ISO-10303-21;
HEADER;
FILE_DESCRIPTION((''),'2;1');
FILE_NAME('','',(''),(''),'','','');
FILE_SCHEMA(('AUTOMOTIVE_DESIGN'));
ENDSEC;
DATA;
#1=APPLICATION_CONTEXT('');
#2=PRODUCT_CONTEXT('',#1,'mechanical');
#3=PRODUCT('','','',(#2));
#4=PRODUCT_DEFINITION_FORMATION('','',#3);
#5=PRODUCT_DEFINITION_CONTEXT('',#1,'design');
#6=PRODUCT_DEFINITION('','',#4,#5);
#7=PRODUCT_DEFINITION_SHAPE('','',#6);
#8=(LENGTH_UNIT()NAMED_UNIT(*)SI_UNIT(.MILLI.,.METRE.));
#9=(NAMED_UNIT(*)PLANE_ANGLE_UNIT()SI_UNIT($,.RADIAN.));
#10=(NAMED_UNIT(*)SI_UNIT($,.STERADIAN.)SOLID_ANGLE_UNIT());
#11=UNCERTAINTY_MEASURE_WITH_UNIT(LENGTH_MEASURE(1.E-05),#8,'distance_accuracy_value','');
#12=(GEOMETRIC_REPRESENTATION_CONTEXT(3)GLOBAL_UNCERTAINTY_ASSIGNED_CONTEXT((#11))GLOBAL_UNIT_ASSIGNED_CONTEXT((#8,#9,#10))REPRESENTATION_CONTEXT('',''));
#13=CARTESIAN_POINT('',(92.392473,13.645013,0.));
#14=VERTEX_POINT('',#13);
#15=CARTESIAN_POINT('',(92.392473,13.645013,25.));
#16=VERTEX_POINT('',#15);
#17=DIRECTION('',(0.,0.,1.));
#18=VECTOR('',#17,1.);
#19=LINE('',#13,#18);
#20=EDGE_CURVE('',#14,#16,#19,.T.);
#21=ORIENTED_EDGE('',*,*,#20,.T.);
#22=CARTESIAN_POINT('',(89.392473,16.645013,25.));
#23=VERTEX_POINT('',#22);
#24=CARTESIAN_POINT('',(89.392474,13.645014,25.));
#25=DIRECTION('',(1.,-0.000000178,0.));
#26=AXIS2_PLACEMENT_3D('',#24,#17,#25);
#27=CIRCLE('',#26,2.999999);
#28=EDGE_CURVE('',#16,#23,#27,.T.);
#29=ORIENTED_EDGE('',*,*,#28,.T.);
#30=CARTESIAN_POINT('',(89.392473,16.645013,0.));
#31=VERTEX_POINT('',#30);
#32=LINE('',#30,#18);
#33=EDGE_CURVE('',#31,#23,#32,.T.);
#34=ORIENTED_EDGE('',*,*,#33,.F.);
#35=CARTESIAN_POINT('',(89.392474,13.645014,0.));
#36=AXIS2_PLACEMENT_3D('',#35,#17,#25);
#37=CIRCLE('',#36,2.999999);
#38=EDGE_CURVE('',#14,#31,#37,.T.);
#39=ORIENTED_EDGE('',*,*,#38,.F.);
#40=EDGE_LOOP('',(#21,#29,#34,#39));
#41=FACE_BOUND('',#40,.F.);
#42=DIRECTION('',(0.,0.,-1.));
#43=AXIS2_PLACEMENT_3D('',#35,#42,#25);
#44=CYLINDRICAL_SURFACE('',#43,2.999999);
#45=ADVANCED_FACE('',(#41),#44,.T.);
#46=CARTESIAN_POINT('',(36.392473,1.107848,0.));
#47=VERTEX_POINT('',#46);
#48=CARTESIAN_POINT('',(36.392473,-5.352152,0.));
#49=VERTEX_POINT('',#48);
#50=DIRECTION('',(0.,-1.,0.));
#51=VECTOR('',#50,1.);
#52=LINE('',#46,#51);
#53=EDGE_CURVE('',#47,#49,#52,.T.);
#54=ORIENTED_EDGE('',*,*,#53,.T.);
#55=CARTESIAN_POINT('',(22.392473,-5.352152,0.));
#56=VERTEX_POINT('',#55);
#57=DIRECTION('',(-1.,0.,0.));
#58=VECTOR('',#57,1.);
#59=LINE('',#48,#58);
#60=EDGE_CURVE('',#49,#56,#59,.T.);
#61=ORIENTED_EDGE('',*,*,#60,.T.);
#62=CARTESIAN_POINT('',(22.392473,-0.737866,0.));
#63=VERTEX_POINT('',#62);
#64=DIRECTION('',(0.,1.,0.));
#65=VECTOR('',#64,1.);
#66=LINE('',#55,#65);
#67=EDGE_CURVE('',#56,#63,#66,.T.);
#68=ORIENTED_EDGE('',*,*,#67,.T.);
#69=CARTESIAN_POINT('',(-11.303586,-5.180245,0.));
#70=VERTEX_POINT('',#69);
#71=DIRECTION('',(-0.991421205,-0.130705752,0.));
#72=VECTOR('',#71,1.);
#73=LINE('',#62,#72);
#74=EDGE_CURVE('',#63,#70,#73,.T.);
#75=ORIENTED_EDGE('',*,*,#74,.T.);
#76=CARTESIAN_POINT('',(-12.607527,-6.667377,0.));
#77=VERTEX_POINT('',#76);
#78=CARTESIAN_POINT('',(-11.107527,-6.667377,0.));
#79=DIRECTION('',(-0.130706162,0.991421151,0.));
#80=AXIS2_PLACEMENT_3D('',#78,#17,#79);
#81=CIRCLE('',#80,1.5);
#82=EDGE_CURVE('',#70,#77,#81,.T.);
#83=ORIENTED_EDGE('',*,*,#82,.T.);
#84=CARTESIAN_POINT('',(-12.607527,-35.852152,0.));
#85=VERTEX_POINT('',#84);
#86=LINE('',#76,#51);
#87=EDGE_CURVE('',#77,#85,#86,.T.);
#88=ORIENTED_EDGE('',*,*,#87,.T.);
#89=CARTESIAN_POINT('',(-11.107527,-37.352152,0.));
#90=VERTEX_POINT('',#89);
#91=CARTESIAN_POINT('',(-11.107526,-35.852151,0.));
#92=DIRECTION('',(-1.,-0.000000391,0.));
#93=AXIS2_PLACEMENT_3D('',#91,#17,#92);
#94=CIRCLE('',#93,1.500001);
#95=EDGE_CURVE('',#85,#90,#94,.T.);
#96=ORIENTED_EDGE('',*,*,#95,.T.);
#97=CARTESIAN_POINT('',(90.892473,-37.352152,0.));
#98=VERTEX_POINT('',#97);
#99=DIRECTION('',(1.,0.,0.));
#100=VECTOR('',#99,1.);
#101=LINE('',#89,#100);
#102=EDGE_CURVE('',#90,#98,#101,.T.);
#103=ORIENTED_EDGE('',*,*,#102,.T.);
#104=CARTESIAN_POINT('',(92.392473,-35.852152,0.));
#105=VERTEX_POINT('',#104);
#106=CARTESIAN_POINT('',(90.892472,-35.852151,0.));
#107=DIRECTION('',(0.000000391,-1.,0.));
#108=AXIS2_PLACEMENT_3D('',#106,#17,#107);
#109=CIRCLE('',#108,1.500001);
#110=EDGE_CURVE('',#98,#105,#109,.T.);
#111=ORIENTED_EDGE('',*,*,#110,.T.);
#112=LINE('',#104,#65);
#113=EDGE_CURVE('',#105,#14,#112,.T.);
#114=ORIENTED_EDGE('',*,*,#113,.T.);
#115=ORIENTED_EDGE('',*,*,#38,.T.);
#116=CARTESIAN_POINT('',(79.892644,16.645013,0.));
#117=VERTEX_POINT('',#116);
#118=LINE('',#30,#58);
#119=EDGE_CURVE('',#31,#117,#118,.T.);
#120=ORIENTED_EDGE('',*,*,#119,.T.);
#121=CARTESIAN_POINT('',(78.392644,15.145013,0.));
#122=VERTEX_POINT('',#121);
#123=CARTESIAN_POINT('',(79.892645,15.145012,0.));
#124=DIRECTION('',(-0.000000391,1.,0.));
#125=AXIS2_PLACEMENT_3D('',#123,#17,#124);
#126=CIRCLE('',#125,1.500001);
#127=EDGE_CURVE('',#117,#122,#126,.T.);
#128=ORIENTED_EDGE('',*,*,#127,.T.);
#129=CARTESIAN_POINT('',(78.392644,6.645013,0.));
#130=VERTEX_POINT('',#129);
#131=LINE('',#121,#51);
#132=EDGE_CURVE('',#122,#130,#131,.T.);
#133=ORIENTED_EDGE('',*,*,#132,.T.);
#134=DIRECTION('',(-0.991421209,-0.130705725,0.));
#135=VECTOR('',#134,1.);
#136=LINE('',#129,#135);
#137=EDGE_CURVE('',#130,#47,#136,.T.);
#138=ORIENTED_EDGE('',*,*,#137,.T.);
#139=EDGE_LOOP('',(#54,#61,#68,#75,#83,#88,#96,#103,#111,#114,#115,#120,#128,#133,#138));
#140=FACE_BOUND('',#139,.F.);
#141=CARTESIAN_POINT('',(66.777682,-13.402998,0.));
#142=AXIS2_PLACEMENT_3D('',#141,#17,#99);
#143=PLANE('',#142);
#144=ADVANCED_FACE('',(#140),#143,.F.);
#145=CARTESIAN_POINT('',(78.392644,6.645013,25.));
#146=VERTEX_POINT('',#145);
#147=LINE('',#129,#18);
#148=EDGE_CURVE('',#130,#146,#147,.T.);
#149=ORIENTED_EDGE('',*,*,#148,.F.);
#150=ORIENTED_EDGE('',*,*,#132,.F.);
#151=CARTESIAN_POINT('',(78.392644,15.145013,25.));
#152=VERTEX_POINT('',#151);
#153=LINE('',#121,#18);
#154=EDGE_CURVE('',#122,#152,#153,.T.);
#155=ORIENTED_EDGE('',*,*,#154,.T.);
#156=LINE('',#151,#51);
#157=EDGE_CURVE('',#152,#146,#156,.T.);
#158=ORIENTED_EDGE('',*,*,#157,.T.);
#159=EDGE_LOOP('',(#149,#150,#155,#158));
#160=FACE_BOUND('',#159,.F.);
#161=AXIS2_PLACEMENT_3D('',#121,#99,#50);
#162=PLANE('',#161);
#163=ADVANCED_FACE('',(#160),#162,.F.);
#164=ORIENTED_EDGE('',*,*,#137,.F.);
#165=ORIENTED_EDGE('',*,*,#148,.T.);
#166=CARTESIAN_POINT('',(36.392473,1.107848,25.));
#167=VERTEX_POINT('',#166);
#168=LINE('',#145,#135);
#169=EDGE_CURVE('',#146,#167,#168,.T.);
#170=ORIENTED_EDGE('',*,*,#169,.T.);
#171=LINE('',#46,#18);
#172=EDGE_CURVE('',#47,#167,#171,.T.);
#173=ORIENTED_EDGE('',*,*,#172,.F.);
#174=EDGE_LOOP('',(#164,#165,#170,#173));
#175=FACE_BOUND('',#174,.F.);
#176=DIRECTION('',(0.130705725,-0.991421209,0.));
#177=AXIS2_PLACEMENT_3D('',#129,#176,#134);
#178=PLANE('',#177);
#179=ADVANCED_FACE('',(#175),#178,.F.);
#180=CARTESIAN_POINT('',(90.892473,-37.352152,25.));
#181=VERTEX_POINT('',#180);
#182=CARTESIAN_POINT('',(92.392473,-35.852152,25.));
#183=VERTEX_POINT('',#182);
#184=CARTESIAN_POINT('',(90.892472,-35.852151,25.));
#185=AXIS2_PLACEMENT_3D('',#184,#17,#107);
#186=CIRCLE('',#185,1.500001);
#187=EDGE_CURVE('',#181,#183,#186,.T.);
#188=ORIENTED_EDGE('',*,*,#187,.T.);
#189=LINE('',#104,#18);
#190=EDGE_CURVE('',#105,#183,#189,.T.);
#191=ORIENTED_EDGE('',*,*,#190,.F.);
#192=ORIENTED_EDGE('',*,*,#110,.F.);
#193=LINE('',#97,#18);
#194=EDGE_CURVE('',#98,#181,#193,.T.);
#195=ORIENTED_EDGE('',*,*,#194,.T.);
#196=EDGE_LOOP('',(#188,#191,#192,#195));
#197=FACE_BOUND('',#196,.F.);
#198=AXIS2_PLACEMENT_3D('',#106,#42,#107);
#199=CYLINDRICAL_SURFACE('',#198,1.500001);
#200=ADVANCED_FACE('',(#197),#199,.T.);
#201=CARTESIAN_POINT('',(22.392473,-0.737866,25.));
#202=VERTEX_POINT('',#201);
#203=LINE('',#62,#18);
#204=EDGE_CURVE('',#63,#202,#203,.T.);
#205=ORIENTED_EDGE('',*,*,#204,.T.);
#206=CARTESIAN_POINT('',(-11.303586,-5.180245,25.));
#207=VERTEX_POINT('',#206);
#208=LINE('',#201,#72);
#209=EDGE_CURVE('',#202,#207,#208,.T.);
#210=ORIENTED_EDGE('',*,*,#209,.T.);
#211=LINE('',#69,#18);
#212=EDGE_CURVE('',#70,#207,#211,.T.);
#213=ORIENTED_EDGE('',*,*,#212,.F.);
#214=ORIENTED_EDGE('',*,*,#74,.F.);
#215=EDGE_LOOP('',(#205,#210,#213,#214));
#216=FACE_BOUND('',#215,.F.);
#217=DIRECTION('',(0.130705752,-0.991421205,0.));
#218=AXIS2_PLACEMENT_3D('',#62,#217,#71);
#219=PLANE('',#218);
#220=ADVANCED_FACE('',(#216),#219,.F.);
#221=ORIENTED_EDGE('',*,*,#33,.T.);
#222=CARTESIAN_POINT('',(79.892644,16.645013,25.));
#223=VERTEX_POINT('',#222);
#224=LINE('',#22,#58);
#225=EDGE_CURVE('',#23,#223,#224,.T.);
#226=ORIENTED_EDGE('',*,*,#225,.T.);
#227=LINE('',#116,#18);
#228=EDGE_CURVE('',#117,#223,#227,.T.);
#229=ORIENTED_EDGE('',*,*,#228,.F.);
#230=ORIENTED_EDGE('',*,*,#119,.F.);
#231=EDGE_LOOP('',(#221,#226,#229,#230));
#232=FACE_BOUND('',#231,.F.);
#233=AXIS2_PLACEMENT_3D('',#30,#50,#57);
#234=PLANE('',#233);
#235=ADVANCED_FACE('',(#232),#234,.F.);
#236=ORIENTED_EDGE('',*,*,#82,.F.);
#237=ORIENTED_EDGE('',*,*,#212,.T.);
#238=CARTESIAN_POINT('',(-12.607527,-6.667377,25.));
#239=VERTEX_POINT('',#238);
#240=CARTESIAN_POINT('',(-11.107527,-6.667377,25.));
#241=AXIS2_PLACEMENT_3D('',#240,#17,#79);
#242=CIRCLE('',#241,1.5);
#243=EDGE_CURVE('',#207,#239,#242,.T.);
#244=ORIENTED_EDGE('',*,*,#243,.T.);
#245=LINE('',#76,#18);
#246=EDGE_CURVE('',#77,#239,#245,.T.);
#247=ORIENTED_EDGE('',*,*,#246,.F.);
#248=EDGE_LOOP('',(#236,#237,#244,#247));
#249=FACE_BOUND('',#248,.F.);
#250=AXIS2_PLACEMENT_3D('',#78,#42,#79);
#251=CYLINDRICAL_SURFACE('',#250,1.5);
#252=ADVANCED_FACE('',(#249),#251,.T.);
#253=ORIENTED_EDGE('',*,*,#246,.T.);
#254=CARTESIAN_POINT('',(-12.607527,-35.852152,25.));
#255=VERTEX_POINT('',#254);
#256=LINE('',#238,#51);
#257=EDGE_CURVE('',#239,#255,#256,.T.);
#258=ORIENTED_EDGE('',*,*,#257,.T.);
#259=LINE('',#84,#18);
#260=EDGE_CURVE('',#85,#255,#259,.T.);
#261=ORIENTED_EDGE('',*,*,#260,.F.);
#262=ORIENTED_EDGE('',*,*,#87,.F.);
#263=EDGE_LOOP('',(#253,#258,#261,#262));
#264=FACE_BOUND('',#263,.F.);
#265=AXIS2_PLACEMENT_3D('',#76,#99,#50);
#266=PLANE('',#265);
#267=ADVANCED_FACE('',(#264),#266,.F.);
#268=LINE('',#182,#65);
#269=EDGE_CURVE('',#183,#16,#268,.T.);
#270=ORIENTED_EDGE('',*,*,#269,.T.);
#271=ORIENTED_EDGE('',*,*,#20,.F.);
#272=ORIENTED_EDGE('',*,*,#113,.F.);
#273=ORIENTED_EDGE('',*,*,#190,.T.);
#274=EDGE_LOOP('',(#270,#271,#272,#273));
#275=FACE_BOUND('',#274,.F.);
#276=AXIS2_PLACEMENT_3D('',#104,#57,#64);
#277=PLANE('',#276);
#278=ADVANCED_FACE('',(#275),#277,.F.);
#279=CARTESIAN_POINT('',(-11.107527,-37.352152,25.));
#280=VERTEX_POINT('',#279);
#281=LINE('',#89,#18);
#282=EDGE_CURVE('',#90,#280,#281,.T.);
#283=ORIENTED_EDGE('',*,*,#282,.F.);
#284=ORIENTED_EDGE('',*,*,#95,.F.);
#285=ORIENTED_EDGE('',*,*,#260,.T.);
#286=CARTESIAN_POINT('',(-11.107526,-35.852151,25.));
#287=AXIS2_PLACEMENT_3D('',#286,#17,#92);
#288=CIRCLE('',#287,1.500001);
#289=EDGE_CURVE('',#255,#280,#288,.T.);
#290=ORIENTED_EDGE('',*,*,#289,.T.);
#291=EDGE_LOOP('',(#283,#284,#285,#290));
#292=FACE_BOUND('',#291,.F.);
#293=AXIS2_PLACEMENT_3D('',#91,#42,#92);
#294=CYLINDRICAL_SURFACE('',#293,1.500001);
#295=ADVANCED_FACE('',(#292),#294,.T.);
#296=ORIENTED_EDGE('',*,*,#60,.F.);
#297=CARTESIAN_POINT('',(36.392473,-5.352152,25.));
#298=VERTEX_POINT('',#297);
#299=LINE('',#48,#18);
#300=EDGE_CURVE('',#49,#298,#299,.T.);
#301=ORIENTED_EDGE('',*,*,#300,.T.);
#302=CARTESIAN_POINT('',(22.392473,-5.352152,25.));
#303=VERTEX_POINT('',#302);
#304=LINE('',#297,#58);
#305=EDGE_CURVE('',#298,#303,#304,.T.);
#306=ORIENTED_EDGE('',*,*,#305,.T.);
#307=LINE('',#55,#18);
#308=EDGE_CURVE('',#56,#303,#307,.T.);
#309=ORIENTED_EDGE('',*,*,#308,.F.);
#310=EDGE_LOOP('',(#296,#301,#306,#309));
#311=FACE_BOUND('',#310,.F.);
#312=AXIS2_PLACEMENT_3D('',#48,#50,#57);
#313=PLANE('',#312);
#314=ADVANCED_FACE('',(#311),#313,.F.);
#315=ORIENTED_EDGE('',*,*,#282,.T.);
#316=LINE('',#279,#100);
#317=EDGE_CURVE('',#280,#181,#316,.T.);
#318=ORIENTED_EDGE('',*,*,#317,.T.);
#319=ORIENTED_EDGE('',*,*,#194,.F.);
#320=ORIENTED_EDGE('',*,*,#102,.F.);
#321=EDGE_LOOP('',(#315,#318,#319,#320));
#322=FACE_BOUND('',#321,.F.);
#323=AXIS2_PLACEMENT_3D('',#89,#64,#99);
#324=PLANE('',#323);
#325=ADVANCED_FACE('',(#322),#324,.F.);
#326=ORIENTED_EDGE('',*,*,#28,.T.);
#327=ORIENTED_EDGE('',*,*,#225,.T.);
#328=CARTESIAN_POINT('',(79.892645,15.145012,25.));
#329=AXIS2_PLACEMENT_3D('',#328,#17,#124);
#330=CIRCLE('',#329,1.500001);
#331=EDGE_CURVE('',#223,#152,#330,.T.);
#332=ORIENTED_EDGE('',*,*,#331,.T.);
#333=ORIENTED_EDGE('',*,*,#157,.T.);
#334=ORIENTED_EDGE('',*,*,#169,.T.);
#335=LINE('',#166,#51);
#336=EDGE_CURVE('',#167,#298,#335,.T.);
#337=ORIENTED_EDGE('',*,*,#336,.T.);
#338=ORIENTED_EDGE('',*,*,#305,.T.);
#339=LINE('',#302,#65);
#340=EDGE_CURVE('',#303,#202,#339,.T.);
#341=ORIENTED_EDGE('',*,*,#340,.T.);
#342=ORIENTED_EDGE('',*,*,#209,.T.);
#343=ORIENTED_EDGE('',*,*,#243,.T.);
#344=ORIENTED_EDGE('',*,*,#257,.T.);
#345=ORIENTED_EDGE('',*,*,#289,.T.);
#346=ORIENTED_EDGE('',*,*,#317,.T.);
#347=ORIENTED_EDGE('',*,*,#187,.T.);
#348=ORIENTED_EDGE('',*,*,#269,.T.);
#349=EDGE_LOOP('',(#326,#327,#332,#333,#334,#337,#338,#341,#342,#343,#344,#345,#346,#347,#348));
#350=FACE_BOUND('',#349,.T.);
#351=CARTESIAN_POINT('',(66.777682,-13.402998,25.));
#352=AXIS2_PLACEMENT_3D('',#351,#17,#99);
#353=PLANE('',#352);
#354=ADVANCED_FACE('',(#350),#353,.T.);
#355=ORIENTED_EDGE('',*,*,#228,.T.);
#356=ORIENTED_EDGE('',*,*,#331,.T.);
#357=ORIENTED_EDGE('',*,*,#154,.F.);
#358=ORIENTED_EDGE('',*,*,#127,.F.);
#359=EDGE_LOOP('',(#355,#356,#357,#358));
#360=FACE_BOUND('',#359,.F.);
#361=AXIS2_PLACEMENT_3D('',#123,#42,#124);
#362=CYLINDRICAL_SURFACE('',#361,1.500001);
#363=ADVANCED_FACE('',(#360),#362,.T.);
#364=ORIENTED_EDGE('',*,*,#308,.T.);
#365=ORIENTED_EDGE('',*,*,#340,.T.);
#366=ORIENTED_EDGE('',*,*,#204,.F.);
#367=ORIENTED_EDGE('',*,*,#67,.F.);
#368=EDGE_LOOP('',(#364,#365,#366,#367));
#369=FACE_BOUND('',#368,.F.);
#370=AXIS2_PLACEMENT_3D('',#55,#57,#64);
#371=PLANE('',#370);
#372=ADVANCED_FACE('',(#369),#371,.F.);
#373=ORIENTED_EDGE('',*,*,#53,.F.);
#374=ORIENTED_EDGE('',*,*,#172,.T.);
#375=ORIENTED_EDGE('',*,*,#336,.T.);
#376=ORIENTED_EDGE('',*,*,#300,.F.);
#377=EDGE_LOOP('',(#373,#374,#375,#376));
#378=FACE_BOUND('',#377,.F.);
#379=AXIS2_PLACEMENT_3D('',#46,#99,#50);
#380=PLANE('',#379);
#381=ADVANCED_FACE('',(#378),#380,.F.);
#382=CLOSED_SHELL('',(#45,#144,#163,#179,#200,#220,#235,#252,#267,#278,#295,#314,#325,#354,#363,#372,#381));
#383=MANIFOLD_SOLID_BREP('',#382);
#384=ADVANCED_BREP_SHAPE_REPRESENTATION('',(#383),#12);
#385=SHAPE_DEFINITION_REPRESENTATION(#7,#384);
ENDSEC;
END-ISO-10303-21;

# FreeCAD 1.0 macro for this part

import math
import FreeCAD as App
import Part
import Sketcher
from FreeCAD import Vector
Q = App.Units.Quantity

doc = App.newDocument("Part")
params = doc.addObject("Spreadsheet::Sheet", "Params")
for row, (alias, value) in enumerate([
    ("sketch1_radius", "2.999999 mm"),
    ("sketch1_radius2", "1.500001 mm"),
    ("sketch1_width", "14 mm"),
    ("sketch1_width2", "102 mm"),
    ("sketch1_height", "8.5 mm"),
    ("pad1_length", "25 mm"),
], start=1):
    params.set(f"A{row}", alias)
    params.set(f"B{row}", "=" + value)
    params.setAlias(f"B{row}", alias)

body = doc.addObject("PartDesign::Body", "Body")

# Sketch on XY plane
sketch1 = doc.addObject("Sketcher::SketchObject", "Sketch")
body.addObject(sketch1)
sketch1.AttachmentSupport = (doc.XY_Plane, [""])
sketch1.MapMode = "FlatFace"
sketch1.addGeometry(Part.ArcOfCircle(Part.Circle(Vector(90.9, -35.9, 0), Vector(0, 0, 1), 1.5), math.radians(-90), math.radians(0)), False)
sketch1.addGeometry(Part.LineSegment(Vector(92.4, -35.9, 0), Vector(92.4, 13.6, 0)), False)
sketch1.addGeometry(Part.ArcOfCircle(Part.Circle(Vector(89.4, 13.6, 0), Vector(0, 0, 1), 3), math.radians(0), math.radians(90)), False)
sketch1.addGeometry(Part.LineSegment(Vector(89.4, 16.6, 0), Vector(79.9, 16.6, 0)), False)
sketch1.addGeometry(Part.ArcOfCircle(Part.Circle(Vector(79.9, 15.1, 0), Vector(0, 0, 1), 1.5), math.radians(90), math.radians(180)), False)
sketch1.addGeometry(Part.LineSegment(Vector(78.4, 15.1, 0), Vector(78.4, 6.6, 0)), False)
sketch1.addGeometry(Part.LineSegment(Vector(78.4, 6.6, 0), Vector(36.4, 1.1, 0)), False)
sketch1.addGeometry(Part.LineSegment(Vector(36.4, 1.1, 0), Vector(36.4, -5.4, 0)), False)
sketch1.addGeometry(Part.LineSegment(Vector(36.4, -5.4, 0), Vector(22.4, -5.4, 0)), False)
sketch1.addGeometry(Part.LineSegment(Vector(22.4, -5.4, 0), Vector(22.4, -0.7, 0)), False)
sketch1.addGeometry(Part.LineSegment(Vector(22.4, -0.7, 0), Vector(-11.3, -5.2, 0)), False)
sketch1.addGeometry(Part.ArcOfCircle(Part.Circle(Vector(-11.1, -6.7, 0), Vector(0, 0, 1), 1.5), math.radians(98), math.radians(180)), False)
sketch1.addGeometry(Part.LineSegment(Vector(-12.6, -6.7, 0), Vector(-12.6, -35.9, 0)), False)
sketch1.addGeometry(Part.ArcOfCircle(Part.Circle(Vector(-11.1, -35.9, 0), Vector(0, 0, 1), 1.5), math.radians(-180), math.radians(-90)), False)
sketch1.addGeometry(Part.LineSegment(Vector(-11.1, -37.4, 0), Vector(90.9, -37.4, 0)), False)
sketch1.addConstraint(Sketcher.Constraint("Tangent", 0, 2, 1, 1))
sketch1.addConstraint(Sketcher.Constraint("Tangent", 1, 2, 2, 1))
sketch1.addConstraint(Sketcher.Constraint("Tangent", 2, 2, 3, 1))
sketch1.addConstraint(Sketcher.Constraint("Tangent", 3, 2, 4, 1))
sketch1.addConstraint(Sketcher.Constraint("Tangent", 4, 2, 5, 1))
sketch1.addConstraint(Sketcher.Constraint("Coincident", 5, 2, 6, 1))
sketch1.addConstraint(Sketcher.Constraint("Coincident", 6, 2, 7, 1))
sketch1.addConstraint(Sketcher.Constraint("Coincident", 7, 2, 8, 1))
sketch1.addConstraint(Sketcher.Constraint("Coincident", 8, 2, 9, 1))
sketch1.addConstraint(Sketcher.Constraint("Coincident", 9, 2, 10, 1))
sketch1.addConstraint(Sketcher.Constraint("Tangent", 10, 2, 11, 1))
sketch1.addConstraint(Sketcher.Constraint("Tangent", 11, 2, 12, 1))
sketch1.addConstraint(Sketcher.Constraint("Tangent", 12, 2, 13, 1))
sketch1.addConstraint(Sketcher.Constraint("Tangent", 13, 2, 14, 1))
sketch1.addConstraint(Sketcher.Constraint("Tangent", 14, 2, 0, 1))
sketch1.addConstraint(Sketcher.Constraint("Vertical", 1))
sketch1.addConstraint(Sketcher.Constraint("Horizontal", 3))
sketch1.addConstraint(Sketcher.Constraint("Vertical", 5))
sketch1.addConstraint(Sketcher.Constraint("Vertical", 7))
sketch1.addConstraint(Sketcher.Constraint("Horizontal", 8))
sketch1.addConstraint(Sketcher.Constraint("Vertical", 9))
sketch1.addConstraint(Sketcher.Constraint("Vertical", 12))
sketch1.addConstraint(Sketcher.Constraint("Horizontal", 14))
sketch1.addConstraint(Sketcher.Constraint("Equal", 0, 4))
sketch1.addConstraint(Sketcher.Constraint("Equal", 4, 11))
sketch1.addConstraint(Sketcher.Constraint("Equal", 11, 13))
sketch1.addConstraint(Sketcher.Constraint("Parallel", 6, 10))
sketch1.addConstraint(Sketcher.Constraint("Radius", 2, Q("2.999999 mm")))
sketch1.addConstraint(Sketcher.Constraint("Radius", 0, Q("1.500001 mm")))
sketch1.addConstraint(Sketcher.Constraint("DistanceX", 8, 2, 8, 1, Q("14 mm")))
sketch1.addConstraint(Sketcher.Constraint("DistanceX", 14, 1, 14, 2, Q("102 mm")))
sketch1.addConstraint(Sketcher.Constraint("DistanceY", 5, 2, 5, 1, Q("8.5 mm")))
sketch1.addConstraint(Sketcher.Constraint("DistanceX", 11, 2, 8, 2, Q("35 mm")))
sketch1.addConstraint(Sketcher.Constraint("DistanceY", 7, 2, 7, 1, Q("6.46 mm")))
sketch1.addConstraint(Sketcher.Constraint("DistanceY", 13, 3, 8, 2, Q("30.499999 mm")))
sketch1.addConstraint(Sketcher.Constraint("Distance", 6, Q("42.363599 mm")))
sketch1.addConstraint(Sketcher.Constraint("DistanceX", 3, 2, 3, 1, Q("9.499829 mm")))
sketch1.addConstraint(Sketcher.Constraint("DistanceY", 9, 1, 9, 2, Q("4.614286 mm")))
sketch1.addConstraint(Sketcher.Constraint("DistanceY", 0, 3, -1, 1, Q("35.852151 mm")))
sketch1.addConstraint(Sketcher.Constraint("DistanceX", -1, 1, 0, 3, Q("90.892472 mm")))
sketch1.setExpression("Constraints[27]", "Params.sketch1_radius")
sketch1.setExpression("Constraints[28]", "Params.sketch1_radius2")
sketch1.setExpression("Constraints[29]", "Params.sketch1_width")
sketch1.setExpression("Constraints[30]", "Params.sketch1_width2")
sketch1.setExpression("Constraints[31]", "Params.sketch1_height")
pad1 = doc.addObject("PartDesign::Pad", "Pad")
body.addObject(pad1)
pad1.Profile = sketch1
pad1.setExpression("Length", "Params.pad1_length")

doc.recompute()
